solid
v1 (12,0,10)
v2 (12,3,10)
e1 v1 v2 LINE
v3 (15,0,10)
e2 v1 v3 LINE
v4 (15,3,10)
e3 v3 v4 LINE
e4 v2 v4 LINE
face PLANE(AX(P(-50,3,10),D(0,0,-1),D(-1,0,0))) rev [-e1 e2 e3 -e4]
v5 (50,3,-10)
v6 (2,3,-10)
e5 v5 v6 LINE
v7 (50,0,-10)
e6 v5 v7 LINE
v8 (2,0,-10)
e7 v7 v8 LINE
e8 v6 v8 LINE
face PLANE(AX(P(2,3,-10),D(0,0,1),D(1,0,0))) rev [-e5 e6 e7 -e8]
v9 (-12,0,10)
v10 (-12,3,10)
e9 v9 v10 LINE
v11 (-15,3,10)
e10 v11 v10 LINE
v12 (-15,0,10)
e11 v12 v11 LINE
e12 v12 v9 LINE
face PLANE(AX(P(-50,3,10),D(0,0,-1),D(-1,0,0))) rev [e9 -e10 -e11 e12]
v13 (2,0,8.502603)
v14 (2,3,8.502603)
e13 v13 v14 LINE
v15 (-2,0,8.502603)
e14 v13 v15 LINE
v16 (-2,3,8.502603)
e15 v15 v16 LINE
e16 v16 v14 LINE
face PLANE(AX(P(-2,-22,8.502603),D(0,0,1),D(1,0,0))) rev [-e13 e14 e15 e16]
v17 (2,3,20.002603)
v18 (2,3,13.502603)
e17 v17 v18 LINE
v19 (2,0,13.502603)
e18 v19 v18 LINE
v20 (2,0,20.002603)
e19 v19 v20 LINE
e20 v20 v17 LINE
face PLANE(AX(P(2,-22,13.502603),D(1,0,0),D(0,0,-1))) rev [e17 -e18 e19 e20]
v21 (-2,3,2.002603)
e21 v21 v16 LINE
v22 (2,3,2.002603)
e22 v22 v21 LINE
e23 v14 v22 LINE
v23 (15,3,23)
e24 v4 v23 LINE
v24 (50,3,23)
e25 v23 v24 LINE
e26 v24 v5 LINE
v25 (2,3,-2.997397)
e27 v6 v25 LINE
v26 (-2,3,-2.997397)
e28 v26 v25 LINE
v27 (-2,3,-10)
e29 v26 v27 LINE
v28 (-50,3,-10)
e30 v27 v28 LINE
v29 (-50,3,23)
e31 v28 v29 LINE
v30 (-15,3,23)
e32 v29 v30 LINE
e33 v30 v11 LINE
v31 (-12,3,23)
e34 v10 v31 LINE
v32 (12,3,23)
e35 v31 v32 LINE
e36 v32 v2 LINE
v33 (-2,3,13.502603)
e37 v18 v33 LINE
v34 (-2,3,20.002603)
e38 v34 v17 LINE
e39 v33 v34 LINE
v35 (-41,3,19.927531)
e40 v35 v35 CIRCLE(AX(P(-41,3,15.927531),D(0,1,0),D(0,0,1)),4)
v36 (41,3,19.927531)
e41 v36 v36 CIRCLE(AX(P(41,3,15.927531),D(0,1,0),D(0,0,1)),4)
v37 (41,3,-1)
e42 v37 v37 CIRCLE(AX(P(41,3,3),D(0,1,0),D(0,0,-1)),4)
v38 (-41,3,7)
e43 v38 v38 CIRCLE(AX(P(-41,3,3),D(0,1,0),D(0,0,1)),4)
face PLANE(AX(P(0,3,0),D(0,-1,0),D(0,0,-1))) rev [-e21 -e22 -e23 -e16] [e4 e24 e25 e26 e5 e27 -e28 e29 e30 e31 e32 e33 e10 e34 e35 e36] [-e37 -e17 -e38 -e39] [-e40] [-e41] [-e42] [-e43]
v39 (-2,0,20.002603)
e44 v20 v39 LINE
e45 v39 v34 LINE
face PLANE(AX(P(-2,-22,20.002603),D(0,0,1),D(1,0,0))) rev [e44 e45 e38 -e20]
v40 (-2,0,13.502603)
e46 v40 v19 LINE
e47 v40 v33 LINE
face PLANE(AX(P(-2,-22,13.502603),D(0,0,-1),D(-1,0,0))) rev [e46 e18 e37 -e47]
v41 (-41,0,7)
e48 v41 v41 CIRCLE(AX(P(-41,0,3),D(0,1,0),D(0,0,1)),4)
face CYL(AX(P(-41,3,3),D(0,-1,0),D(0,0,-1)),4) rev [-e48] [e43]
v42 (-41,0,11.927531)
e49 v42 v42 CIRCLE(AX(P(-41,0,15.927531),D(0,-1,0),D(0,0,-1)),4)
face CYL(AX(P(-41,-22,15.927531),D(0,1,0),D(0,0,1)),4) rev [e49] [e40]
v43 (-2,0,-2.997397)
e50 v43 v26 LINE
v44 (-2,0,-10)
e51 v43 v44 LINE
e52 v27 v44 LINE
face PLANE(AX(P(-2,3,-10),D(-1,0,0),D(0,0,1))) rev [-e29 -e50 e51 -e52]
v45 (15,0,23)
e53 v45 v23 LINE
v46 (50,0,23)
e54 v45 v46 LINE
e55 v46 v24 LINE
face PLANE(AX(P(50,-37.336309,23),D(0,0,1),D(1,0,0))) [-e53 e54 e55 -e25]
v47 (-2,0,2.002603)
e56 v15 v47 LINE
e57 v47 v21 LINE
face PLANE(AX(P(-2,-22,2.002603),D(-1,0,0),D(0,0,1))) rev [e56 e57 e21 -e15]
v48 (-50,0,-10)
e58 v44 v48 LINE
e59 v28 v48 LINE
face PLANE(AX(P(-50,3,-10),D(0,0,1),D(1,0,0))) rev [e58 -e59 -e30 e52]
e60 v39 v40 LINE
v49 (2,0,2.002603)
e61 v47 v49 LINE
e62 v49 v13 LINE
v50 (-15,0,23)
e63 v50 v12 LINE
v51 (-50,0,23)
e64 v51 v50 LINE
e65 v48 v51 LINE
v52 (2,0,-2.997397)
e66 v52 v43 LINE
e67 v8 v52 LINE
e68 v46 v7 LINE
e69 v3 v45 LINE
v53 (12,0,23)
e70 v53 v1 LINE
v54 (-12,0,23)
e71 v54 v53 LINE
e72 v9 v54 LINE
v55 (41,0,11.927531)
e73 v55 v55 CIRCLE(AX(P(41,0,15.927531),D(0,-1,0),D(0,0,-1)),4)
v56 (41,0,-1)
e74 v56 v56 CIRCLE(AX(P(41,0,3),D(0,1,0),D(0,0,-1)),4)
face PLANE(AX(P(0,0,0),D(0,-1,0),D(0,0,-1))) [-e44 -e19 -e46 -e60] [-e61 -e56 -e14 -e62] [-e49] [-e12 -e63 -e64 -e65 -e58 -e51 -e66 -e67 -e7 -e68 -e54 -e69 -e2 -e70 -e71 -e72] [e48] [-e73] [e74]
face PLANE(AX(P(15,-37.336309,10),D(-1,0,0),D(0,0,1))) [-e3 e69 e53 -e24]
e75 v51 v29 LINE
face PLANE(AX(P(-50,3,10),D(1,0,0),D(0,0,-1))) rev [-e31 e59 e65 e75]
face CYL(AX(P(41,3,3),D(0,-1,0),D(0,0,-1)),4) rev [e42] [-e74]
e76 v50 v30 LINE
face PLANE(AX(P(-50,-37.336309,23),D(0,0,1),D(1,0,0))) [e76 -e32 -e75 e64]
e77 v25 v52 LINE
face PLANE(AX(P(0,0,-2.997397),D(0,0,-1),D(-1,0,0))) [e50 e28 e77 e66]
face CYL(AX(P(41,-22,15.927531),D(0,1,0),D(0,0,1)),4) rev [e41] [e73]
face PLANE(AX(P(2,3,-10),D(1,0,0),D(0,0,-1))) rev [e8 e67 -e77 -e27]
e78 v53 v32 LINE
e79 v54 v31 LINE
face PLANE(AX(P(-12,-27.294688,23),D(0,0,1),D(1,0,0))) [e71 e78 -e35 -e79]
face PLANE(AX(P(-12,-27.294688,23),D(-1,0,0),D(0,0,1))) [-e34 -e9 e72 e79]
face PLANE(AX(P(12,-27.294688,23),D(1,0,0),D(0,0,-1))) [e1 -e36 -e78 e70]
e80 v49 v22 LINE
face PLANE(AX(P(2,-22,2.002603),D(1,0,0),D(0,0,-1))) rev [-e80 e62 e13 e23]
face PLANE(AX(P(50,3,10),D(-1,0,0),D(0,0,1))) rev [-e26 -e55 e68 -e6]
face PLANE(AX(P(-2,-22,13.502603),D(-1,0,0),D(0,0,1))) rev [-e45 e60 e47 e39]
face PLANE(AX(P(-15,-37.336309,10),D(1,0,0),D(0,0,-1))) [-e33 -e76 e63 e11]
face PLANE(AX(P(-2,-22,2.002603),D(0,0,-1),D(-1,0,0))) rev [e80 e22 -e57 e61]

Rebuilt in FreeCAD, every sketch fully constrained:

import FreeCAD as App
import Part
import Sketcher
from FreeCAD import Vector
Q = App.Units.Quantity


def add_polygon(sketch, points):
    """Adds a closed chain of lines whose ends are joined by coincident constraints."""
    first, n = sketch.GeometryCount, len(points)
    for a, b in zip(points, points[1:] + points[:1]):
        sketch.addGeometry(Part.LineSegment(App.Vector(*a, 0), App.Vector(*b, 0)), False)
    for i in range(n):
        sketch.addConstraint(Sketcher.Constraint("Coincident", first + i, 2, first + (i + 1) % n, 1))

doc = App.newDocument("Part")
body = doc.addObject("PartDesign::Body", "Body")

# Sketch on XZ plane
sketch1 = body.newObject("Sketcher::SketchObject", "Sketch")
sketch1.AttachmentSupport = (doc.getObject("XZ_Plane"), [""])
sketch1.MapMode = "FlatFace"
add_polygon(sketch1, [(50, -10), (2, -10), (2, -6.3), (-2, -6.3), (-2, -10), (-50, -10), (-50, 10), (50, 10)])  # lines 0-7
sketch1.addGeometry(Part.Circle(Vector(41, 3, 0), Vector(0, 0, 1), 4), False)  # 8
sketch1.addGeometry(Part.Circle(Vector(-41, 3, 0), Vector(0, 0, 1), 4), False)  # 9
sketch1.addConstraint(Sketcher.Constraint("Horizontal", 0))
sketch1.addConstraint(Sketcher.Constraint("Vertical", 1))
sketch1.addConstraint(Sketcher.Constraint("Horizontal", 2))
sketch1.addConstraint(Sketcher.Constraint("Vertical", 3))
sketch1.addConstraint(Sketcher.Constraint("Horizontal", 4))
sketch1.addConstraint(Sketcher.Constraint("Vertical", 5))
sketch1.addConstraint(Sketcher.Constraint("Horizontal", 6))
sketch1.addConstraint(Sketcher.Constraint("Vertical", 7))
sketch1.addConstraint(Sketcher.Constraint("Equal", 8, 9))
sketch1.addConstraint(Sketcher.Constraint("Symmetric", 4, 2, 6, 2, -1, 1))
sketch1.addConstraint(Sketcher.Constraint("Symmetric", 8, 3, 9, 3, -2))
sketch1.addConstraint(Sketcher.Constraint("Symmetric", 0, 2, 3, 2, -2))
sketch1.addConstraint(Sketcher.Constraint("Diameter", 8, Q("8 mm")))
sketch1.addConstraint(Sketcher.Constraint("DistanceX", 0, 2, 0, 1, Q("48 mm")))
sketch1.addConstraint(Sketcher.Constraint("DistanceX", 2, 2, 2, 1, Q("4 mm")))
sketch1.addConstraint(Sketcher.Constraint("DistanceY", 5, 1, 5, 2, Q("20 mm")))
sketch1.addConstraint(Sketcher.Constraint("DistanceX", -1, 1, 8, 3, Q("41 mm")))
sketch1.addConstraint(Sketcher.Constraint("DistanceY", -1, 1, 8, 3, Q("3 mm")))
sketch1.addConstraint(Sketcher.Constraint("DistanceY", 1, 1, 1, 2, Q("3.672603 mm")))
pad1 = body.newObject("PartDesign::Pad", "Pad")
pad1.Profile = sketch1
pad1.Length = 3
pad1.Reversed = True

# Sketch on XY plane
sketch2 = body.newObject("Sketcher::SketchObject", "Sketch001")
sketch2.AttachmentSupport = (doc.getObject("XY_Plane"), [""])
sketch2.MapMode = "FlatFace"
sketch2.AttachmentOffset = App.Placement(Vector(0, 0, -6.327397), App.Rotation())
add_polygon(sketch2, [(2, 3), (2, 0), (-2, 0), (-2, 3)])  # lines 0-3
sketch2.addConstraint(Sketcher.Constraint("Vertical", 0))
sketch2.addConstraint(Sketcher.Constraint("Horizontal", 1))
sketch2.addConstraint(Sketcher.Constraint("Vertical", 2))
sketch2.addConstraint(Sketcher.Constraint("Horizontal", 3))
sketch2.addConstraint(Sketcher.Constraint("Symmetric", 0, 2, 1, 2, -1, 1))
sketch2.addConstraint(Sketcher.Constraint("DistanceX", 1, 2, 1, 1, Q("4 mm")))
sketch2.addConstraint(Sketcher.Constraint("DistanceY", 0, 2, 0, 1, Q("3 mm")))
pocket1 = body.newObject("PartDesign::Pocket", "Pocket")
pocket1.Profile = sketch2
pocket1.Length = 3.33
pocket1.Reversed = True

# Sketch on XZ plane
sketch3 = body.newObject("Sketcher::SketchObject", "Sketch002")
sketch3.AttachmentSupport = (doc.getObject("XZ_Plane"), [""])
sketch3.MapMode = "FlatFace"
sketch3.AttachmentOffset = App.Placement(Vector(0, 0, -3), App.Rotation())
add_polygon(sketch3, [(-12, 10), (-12, 23), (12, 23), (12, 10)])  # lines 0-3
sketch3.addConstraint(Sketcher.Constraint("Vertical", 0))
sketch3.addConstraint(Sketcher.Constraint("Horizontal", 1))
sketch3.addConstraint(Sketcher.Constraint("Vertical", 2))
sketch3.addConstraint(Sketcher.Constraint("Horizontal", 3))
sketch3.addConstraint(Sketcher.Constraint("DistanceX", 1, 1, 1, 2, Q("24 mm")))
sketch3.addConstraint(Sketcher.Constraint("DistanceY", 0, 1, 0, 2, Q("13 mm")))
sketch3.addConstraint(Sketcher.Constraint("DistanceX", 0, 2, -1, 1, Q("12 mm")))
sketch3.addConstraint(Sketcher.Constraint("DistanceY", -1, 1, 0, 2, Q("23 mm")))
pad2 = body.newObject("PartDesign::Pad", "Pad001")
pad2.Profile = sketch3
pad2.Length = 3

# Sketch on XZ plane
sketch4 = body.newObject("Sketcher::SketchObject", "Sketch003")
sketch4.AttachmentSupport = (doc.getObject("XZ_Plane"), [""])
sketch4.MapMode = "FlatFace"
sketch4.AttachmentOffset = App.Placement(Vector(0, 0, -3), App.Rotation())
add_polygon(sketch4, [(-50, 10), (-50, 23), (-15, 23), (-15, 10)])  # lines 0-3
add_polygon(sketch4, [(15, 10), (15, 23), (50, 23), (50, 10)])  # lines 4-7
sketch4.addConstraint(Sketcher.Constraint("Vertical", 0))
sketch4.addConstraint(Sketcher.Constraint("Horizontal", 1))
sketch4.addConstraint(Sketcher.Constraint("Vertical", 2))
sketch4.addConstraint(Sketcher.Constraint("Horizontal", 3))
sketch4.addConstraint(Sketcher.Constraint("Vertical", 4))
sketch4.addConstraint(Sketcher.Constraint("Horizontal", 5))
sketch4.addConstraint(Sketcher.Constraint("Vertical", 6))
sketch4.addConstraint(Sketcher.Constraint("Horizontal", 7))
sketch4.addConstraint(Sketcher.Constraint("Symmetric", 1, 2, 4, 2, -2))
sketch4.addConstraint(Sketcher.Constraint("Symmetric", 3, 2, 6, 2, -2))
sketch4.addConstraint(Sketcher.Constraint("DistanceX", 1, 1, 1, 2, Q("35 mm")))
sketch4.addConstraint(Sketcher.Constraint("DistanceY", 0, 1, 0, 2, Q("13 mm")))
sketch4.addConstraint(Sketcher.Constraint("DistanceX", 0, 2, -1, 1, Q("50 mm")))
sketch4.addConstraint(Sketcher.Constraint("DistanceY", -1, 1, 0, 2, Q("23 mm")))
pad3 = body.newObject("PartDesign::Pad", "Pad002")
pad3.Profile = sketch4
pad3.Length = 3

# Sketch on XZ plane
sketch5 = body.newObject("Sketcher::SketchObject", "Sketch004")
sketch5.AttachmentSupport = (doc.getObject("XZ_Plane"), [""])
sketch5.MapMode = "FlatFace"
sketch5.AttachmentOffset = App.Placement(Vector(0, 0, -3), App.Rotation())
sketch5.addGeometry(Part.Circle(Vector(-41, 15.9, 0), Vector(0, 0, 1), 4), False)
sketch5.addGeometry(Part.Circle(Vector(41, 15.9, 0), Vector(0, 0, 1), 4), False)
sketch5.addConstraint(Sketcher.Constraint("Equal", 0, 1))
sketch5.addConstraint(Sketcher.Constraint("Symmetric", 0, 3, 1, 3, -2))
sketch5.addConstraint(Sketcher.Constraint("Diameter", 0, Q("8 mm")))
sketch5.addConstraint(Sketcher.Constraint("DistanceX", 0, 3, -1, 1, Q("41 mm")))
sketch5.addConstraint(Sketcher.Constraint("DistanceY", -1, 1, 0, 3, Q("15.927531 mm")))
pocket2 = body.newObject("PartDesign::Pocket", "Pocket001")
pocket2.Profile = sketch5
pocket2.Length = 25
pocket2.Reversed = True

# Sketch on XZ plane
sketch6 = body.newObject("Sketcher::SketchObject", "Sketch005")
sketch6.AttachmentSupport = (doc.getObject("XZ_Plane"), [""])
sketch6.MapMode = "FlatFace"
sketch6.AttachmentOffset = App.Placement(Vector(0, 0, -3), App.Rotation())
add_polygon(sketch6, [(-2, 2), (-2, 8.5), (2, 8.5), (2, 2)])  # lines 0-3
add_polygon(sketch6, [(-2, 13.5), (-2, 20), (2, 20), (2, 13.5)])  # lines 4-7
sketch6.addConstraint(Sketcher.Constraint("Vertical", 0))
sketch6.addConstraint(Sketcher.Constraint("Horizontal", 1))
sketch6.addConstraint(Sketcher.Constraint("Vertical", 2))
sketch6.addConstraint(Sketcher.Constraint("Horizontal", 3))
sketch6.addConstraint(Sketcher.Constraint("Vertical", 4))
sketch6.addConstraint(Sketcher.Constraint("Horizontal", 5))
sketch6.addConstraint(Sketcher.Constraint("Vertical", 6))
sketch6.addConstraint(Sketcher.Constraint("Horizontal", 7))
sketch6.addConstraint(Sketcher.Constraint("Vertical", 3, 2, 4, 2))
sketch6.addConstraint(Sketcher.Constraint("Vertical", 2, 2, 5, 2))
sketch6.addConstraint(Sketcher.Constraint("Equal", 2, 4))
sketch6.addConstraint(Sketcher.Constraint("DistanceX", 1, 1, 1, 2, Q("4 mm")))
sketch6.addConstraint(Sketcher.Constraint("DistanceY", 0, 1, 0, 2, Q("6.5 mm")))
sketch6.addConstraint(Sketcher.Constraint("DistanceX", 0, 2, -1, 1, Q("2 mm")))
sketch6.addConstraint(Sketcher.Constraint("DistanceY", 3, 2, 4, 2, Q("18 mm")))
sketch6.addConstraint(Sketcher.Constraint("DistanceY", -1, 1, 0, 2, Q("8.502603 mm")))
pocket3 = body.newObject("PartDesign::Pocket", "Pocket002")
pocket3.Profile = sketch6
pocket3.Length = 25
pocket3.Reversed = True

doc.recompute()
